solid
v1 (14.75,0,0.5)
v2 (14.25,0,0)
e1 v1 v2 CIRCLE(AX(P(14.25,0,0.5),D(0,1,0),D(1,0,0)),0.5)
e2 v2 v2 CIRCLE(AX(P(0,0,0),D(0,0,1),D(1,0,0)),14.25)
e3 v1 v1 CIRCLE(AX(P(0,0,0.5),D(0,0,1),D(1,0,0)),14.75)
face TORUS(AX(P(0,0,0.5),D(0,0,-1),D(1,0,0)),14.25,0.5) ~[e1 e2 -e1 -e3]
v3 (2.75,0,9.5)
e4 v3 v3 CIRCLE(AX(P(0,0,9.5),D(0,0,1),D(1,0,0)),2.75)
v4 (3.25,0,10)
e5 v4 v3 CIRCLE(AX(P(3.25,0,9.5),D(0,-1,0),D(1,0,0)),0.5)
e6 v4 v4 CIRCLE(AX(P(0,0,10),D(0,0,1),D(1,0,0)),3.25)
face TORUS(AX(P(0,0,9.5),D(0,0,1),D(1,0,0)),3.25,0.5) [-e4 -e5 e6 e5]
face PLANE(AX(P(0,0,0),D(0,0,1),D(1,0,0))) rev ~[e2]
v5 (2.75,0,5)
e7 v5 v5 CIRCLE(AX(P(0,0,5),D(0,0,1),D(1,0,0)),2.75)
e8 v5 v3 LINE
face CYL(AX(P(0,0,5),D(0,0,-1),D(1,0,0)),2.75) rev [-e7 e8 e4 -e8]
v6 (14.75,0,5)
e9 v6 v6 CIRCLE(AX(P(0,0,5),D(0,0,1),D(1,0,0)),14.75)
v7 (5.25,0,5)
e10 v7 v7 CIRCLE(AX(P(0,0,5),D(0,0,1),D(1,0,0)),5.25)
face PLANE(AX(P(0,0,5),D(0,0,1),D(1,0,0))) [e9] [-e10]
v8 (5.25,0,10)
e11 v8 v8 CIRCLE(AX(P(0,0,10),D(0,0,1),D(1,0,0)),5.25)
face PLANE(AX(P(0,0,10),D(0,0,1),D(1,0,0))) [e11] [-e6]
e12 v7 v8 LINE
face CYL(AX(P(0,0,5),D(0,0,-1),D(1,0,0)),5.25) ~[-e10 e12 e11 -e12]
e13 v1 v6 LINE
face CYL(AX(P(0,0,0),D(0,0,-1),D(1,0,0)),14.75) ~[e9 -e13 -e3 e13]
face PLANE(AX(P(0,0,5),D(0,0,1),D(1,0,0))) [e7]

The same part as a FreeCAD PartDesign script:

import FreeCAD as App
import Part
import Sketcher


def edges_at(feature, points):
    """Names of the edges that pass closest to the given points."""
    edges = feature.Shape.Edges
    near = lambda p: min(range(len(edges)), key=lambda i: edges[i].distToShape(Part.Vertex(*p))[0])
    return sorted({f"Edge{near(p) + 1}" for p in points})

doc = App.newDocument("Part")
body = doc.addObject("PartDesign::Body", "Body")

sketch1 = body.newObject("Sketcher::SketchObject", "Sketch")
sketch1.AttachmentSupport = (doc.getObject("XY_Plane"), [""])
sketch1.MapMode = "FlatFace"
sketch1.addGeometry(Part.Circle(App.Vector(0, 0, 0), App.Vector(0, 0, 1), 15), False)
sketch1.addConstraint([
    Sketcher.Constraint("Coincident", 0, 3, -1, 1),
    Sketcher.Constraint("Diameter", 0, 29.5),
])
pad1 = body.newObject("PartDesign::Pad", "Pad")
pad1.Profile = sketch1
pad1.Length = 5

sketch2 = body.newObject("Sketcher::SketchObject", "Sketch001")
sketch2.AttachmentSupport = (doc.getObject("XY_Plane"), [""])
sketch2.MapMode = "FlatFace"
sketch2.AttachmentOffset = App.Placement(App.Vector(0, 0, 5), App.Rotation())
sketch2.addGeometry([
    Part.Circle(App.Vector(0, 0, 0), App.Vector(0, 0, 1), 5.2),
    Part.Circle(App.Vector(0, 0, 0), App.Vector(0, 0, 1), 2.8),
], False)
sketch2.addConstraint([
    Sketcher.Constraint("Coincident", 0, 3, -1, 1),
    Sketcher.Constraint("Coincident", 1, 3, -1, 1),
    Sketcher.Constraint("Diameter", 0, 10.5),
    Sketcher.Constraint("Diameter", 1, 5.5),
])
pad2 = body.newObject("PartDesign::Pad", "Pad001")
pad2.Profile = sketch2
pad2.Length = 5
doc.recompute()

fillet = body.newObject("PartDesign::Fillet", "Fillet")
fillet.Base = (pad2, edges_at(pad2, [(-14.75, 0, 0), (-2.75, 0, 10)]))
fillet.Radius = 0.5

doc.recompute()
